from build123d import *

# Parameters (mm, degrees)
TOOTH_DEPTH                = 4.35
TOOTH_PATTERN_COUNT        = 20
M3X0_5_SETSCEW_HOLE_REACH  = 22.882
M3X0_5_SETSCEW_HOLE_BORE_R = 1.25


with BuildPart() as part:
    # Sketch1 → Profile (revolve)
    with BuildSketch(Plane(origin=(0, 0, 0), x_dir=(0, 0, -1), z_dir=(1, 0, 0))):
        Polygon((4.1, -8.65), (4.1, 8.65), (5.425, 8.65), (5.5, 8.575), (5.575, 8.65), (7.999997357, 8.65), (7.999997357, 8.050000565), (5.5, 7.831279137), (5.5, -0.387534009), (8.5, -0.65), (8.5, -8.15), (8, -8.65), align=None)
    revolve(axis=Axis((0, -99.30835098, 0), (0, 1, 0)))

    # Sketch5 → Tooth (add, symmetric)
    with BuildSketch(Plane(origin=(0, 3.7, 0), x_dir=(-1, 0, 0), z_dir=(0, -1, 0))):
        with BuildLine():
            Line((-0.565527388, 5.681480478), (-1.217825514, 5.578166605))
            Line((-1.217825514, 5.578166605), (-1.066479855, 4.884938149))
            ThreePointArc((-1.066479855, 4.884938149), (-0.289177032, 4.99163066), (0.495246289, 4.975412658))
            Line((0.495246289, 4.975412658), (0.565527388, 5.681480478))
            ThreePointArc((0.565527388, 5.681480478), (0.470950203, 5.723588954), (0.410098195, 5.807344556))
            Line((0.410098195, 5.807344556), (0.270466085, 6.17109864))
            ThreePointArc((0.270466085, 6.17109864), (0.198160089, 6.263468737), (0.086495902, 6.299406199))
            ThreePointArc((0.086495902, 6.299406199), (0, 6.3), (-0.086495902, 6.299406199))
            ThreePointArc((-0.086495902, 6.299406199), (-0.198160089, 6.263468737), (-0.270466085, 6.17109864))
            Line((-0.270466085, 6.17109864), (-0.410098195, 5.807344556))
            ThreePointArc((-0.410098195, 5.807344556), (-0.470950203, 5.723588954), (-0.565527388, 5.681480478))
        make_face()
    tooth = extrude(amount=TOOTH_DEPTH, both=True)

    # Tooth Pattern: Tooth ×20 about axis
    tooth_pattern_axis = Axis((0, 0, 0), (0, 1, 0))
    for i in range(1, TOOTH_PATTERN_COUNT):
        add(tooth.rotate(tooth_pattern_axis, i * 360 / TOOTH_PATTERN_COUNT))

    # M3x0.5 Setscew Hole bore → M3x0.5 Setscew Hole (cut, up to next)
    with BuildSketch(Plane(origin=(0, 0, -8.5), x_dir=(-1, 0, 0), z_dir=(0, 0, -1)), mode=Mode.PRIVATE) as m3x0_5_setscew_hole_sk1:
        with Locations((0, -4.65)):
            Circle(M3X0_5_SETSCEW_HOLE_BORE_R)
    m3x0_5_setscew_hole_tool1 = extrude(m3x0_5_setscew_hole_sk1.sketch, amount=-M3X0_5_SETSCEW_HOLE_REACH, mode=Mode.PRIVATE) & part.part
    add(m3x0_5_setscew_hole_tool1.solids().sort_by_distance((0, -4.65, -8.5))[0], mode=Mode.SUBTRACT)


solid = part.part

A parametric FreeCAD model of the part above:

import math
import FreeCAD as App
import Part
import Sketcher

V = App.Vector
Q = App.Units.Quantity


def add_polygon(sketch, points):
    """Adds a closed chain of lines whose ends are joined by coincident constraints."""
    first, n = sketch.GeometryCount, len(points)
    for a, b in zip(points, points[1:] + points[:1]):
        sketch.addGeometry(Part.LineSegment(App.Vector(*a, 0), App.Vector(*b, 0)), False)
    for i in range(n):
        sketch.addConstraint(Sketcher.Constraint("Coincident", first + i, 2, first + (i + 1) % n, 1))

doc = App.newDocument("Part")
body = doc.addObject("PartDesign::Body", "Body")

# Sketch on YZ plane
sketch1 = doc.addObject("Sketcher::SketchObject", "Sketch")
body.addObject(sketch1)
sketch1.AttachmentSupport = (doc.YZ_Plane, [""])
sketch1.MapMode = "FlatFace"
add_polygon(sketch1, [(8.65, -4.1), (-8.65, -4.1), (-8.65, -8), (-8.15, -8.5), (-0.65, -8.5), (-0.39, -5.5), (7.83, -5.5), (8.05, -8), (8.65, -8), (8.65, -5.58), (8.57, -5.5), (8.65, -5.42)])  # lines 0-11
sketch1.addConstraint(Sketcher.Constraint("Horizontal", 0))
sketch1.addConstraint(Sketcher.Constraint("Vertical", 1))
sketch1.addConstraint(Sketcher.Constraint("Horizontal", 3))
sketch1.addConstraint(Sketcher.Constraint("Horizontal", 5))
sketch1.addConstraint(Sketcher.Constraint("Horizontal", 7))
sketch1.addConstraint(Sketcher.Constraint("Vertical", 8))
sketch1.addConstraint(Sketcher.Constraint("Vertical", 11))
sketch1.addConstraint(Sketcher.Constraint("Symmetric", 1, 2, 7, 2, -2))
sketch1.addConstraint(Sketcher.Constraint("Parallel", 2, 9))
sketch1.addConstraint(Sketcher.Constraint("Perpendicular", 9, 10))
sketch1.addConstraint(Sketcher.Constraint("Horizontal", 5, 2, 9, 2))
sketch1.addConstraint(Sketcher.Constraint("Vertical", 8, 2, 10, 2))
sketch1.addConstraint(Sketcher.Constraint("Equal", 9, 10))
sketch1.addConstraint(Sketcher.Constraint("Angle", 4, Q("85 deg")))
sketch1.addConstraint(Sketcher.Constraint("Angle", 6, Q("-85 deg")))
sketch1.addConstraint(Sketcher.Constraint("DistanceX", 0, 2, 0, 1, Q("17.3 mm")))
sketch1.addConstraint(Sketcher.Constraint("DistanceX", 3, 1, 3, 2, Q("7.5 mm")))
sketch1.addConstraint(Sketcher.Constraint("DistanceX", 7, 1, 7, 2, Q("0.599999 mm")))
sketch1.addConstraint(Sketcher.Constraint("DistanceY", 1, 2, 1, 1, Q("3.9 mm")))
sketch1.addConstraint(Sketcher.Constraint("DistanceY", 1, 2, -1, 1, Q("8 mm")))
sketch1.addConstraint(Sketcher.Constraint("DistanceX", 1, 2, 3, 2, Q("8 mm")))
sketch1.addConstraint(Sketcher.Constraint("DistanceY", 3, 2, 4, 2, Q("3 mm")))
sketch1.addConstraint(Sketcher.Constraint("DistanceY", 11, 1, 11, 2, Q("1.325 mm")))
revolution = doc.addObject("PartDesign::Revolution", "Revolution")
body.addObject(revolution)
revolution.Profile = sketch1
revolution.ReferenceAxis = (sketch1, ["H_Axis"])
revolution.Angle = 360

# Sketch on XZ plane
sketch2 = doc.addObject("Sketcher::SketchObject", "Sketch001")
body.addObject(sketch2)
sketch2.AttachmentSupport = (doc.XZ_Plane, [""])
sketch2.MapMode = "FlatFace"
sketch2.AttachmentOffset = App.Placement(V(0, 0, -3.7), App.Rotation())
sketch2.addGeometry(Part.LineSegment(V(0.57, -5.68, 0), V(1.22, -5.58, 0)), False)
sketch2.addGeometry(Part.LineSegment(V(1.22, -5.58, 0), V(1.07, -4.88, 0)), False)
sketch2.addGeometry(Part.ArcOfCircle(Part.Circle(V(0, 0, 0), V(0, 0, 1), 5), math.radians(-95.68), math.radians(-77.68)), False)
sketch2.addGeometry(Part.LineSegment(V(-0.5, -4.98, 0), V(-0.57, -5.68, 0)), False)
sketch2.addGeometry(Part.ArcOfCircle(Part.Circle(V(-0.6, -5.88, 0), V(0, 0, 1), 0.2), math.radians(21), math.radians(81)), False)
sketch2.addGeometry(Part.LineSegment(V(-0.41, -5.81, 0), V(-0.27, -6.17, 0)), False)
sketch2.addGeometry(Part.ArcOfCircle(Part.Circle(V(-0.08, -6.1, 0), V(0, 0, 1), 0.2), math.radians(-159), math.radians(-91)), False)
sketch2.addGeometry(Part.ArcOfCircle(Part.Circle(V(0, 0, 0), V(0, 0, 1), 6.3), math.radians(-90.79), math.radians(-89.21)), False)
sketch2.addGeometry(Part.ArcOfCircle(Part.Circle(V(0.08, -6.1, 0), V(0, 0, 1), 0.2), math.radians(-89), math.radians(-21)), False)
sketch2.addGeometry(Part.LineSegment(V(0.27, -6.17, 0), V(0.41, -5.81, 0)), False)
sketch2.addGeometry(Part.ArcOfCircle(Part.Circle(V(0.6, -5.88, 0), V(0, 0, 1), 0.2), math.radians(99), math.radians(159)), False)
sketch2.addConstraint(Sketcher.Constraint("Coincident", 0, 2, 1, 1))
sketch2.addConstraint(Sketcher.Constraint("Coincident", 1, 2, 2, 2))
sketch2.addConstraint(Sketcher.Constraint("Coincident", 2, 1, 3, 1))
sketch2.addConstraint(Sketcher.Constraint("Coincident", 3, 2, 4, 2))
sketch2.addConstraint(Sketcher.Constraint("Tangent", 4, 1, 5, 1))
sketch2.addConstraint(Sketcher.Constraint("Tangent", 5, 2, 6, 1))
sketch2.addConstraint(Sketcher.Constraint("Tangent", 6, 2, 7, 1))
sketch2.addConstraint(Sketcher.Constraint("Tangent", 7, 2, 8, 1))
sketch2.addConstraint(Sketcher.Constraint("Tangent", 8, 2, 9, 1))
sketch2.addConstraint(Sketcher.Constraint("Tangent", 9, 2, 10, 2))
sketch2.addConstraint(Sketcher.Constraint("Tangent", 10, 1, 0, 1))
sketch2.addConstraint(Sketcher.Constraint("Coincident", 2, 3, -1, 1))
sketch2.addConstraint(Sketcher.Constraint("Coincident", 7, 3, -1, 1))
sketch2.addConstraint(Sketcher.Constraint("Equal", 4, 6))
sketch2.addConstraint(Sketcher.Constraint("Equal", 6, 8))
sketch2.addConstraint(Sketcher.Constraint("Equal", 8, 10))
sketch2.addConstraint(Sketcher.Constraint("Symmetric", 4, 3, 10, 3, -2))
sketch2.addConstraint(Sketcher.Constraint("Horizontal", 6, 3, 8, 3))
sketch2.addConstraint(Sketcher.Constraint("Horizontal", 3, 2, 10, 1))
sketch2.addConstraint(Sketcher.Constraint("Equal", 1, 3))
sketch2.addConstraint(Sketcher.Constraint("Radius", 2, Q("5 mm")))
sketch2.addConstraint(Sketcher.Constraint("Radius", 4, Q("0.2 mm")))
sketch2.addConstraint(Sketcher.Constraint("Radius", 7, Q("6.300001 mm")))
sketch2.addConstraint(Sketcher.Constraint("Angle", 0, Q("9 deg")))
sketch2.addConstraint(Sketcher.Constraint("Angle", 5, Q("-69 deg")))
sketch2.addConstraint(Sketcher.Constraint("DistanceX", 4, 1, -1, 1, Q("0.410098 mm")))
sketch2.addConstraint(Sketcher.Constraint("DistanceX", 6, 3, 8, 3, Q("0.1675 mm")))
sketch2.addConstraint(Sketcher.Constraint("DistanceX", -1, 1, 1, 2, Q("1.06648 mm")))
sketch2.addConstraint(Sketcher.Constraint("DistanceX", 2, 1, 10, 3, Q("1.092061 mm")))
pad1 = doc.addObject("PartDesign::Pad", "Pad")
body.addObject(pad1)
pad1.Profile = sketch2
pad1.Length = 8.7
pad1.Midplane = True
doc.recompute()

polarpattern = doc.addObject("PartDesign::PolarPattern", "PolarPattern")
body.addObject(polarpattern)
polarpattern.Originals = [pad1]
polarpattern.Axis = (doc.Y_Axis, [""])
polarpattern.Angle = 360
polarpattern.Occurrences = 20
body.Tip = polarpattern

# Sketch on XY plane
sketch3 = doc.addObject("Sketcher::SketchObject", "Sketch002")
body.addObject(sketch3)
sketch3.AttachmentSupport = (doc.XY_Plane, [""])
sketch3.MapMode = "FlatFace"
sketch3.AttachmentOffset = App.Placement(V(0, 0, -8.5), App.Rotation())
sketch3.addGeometry(Part.Circle(V(0, -4.7, 0), V(0, 0, 1), 1.2), False)
sketch3.addConstraint(Sketcher.Constraint("PointOnObject", 0, 3, -2))
sketch3.addConstraint(Sketcher.Constraint("Diameter", 0, Q("2.5 mm")))
sketch3.addConstraint(Sketcher.Constraint("DistanceY", 0, 3, -1, 1, Q("4.65 mm")))
pocket1 = doc.addObject("PartDesign::Pocket", "Pocket")
body.addObject(pocket1)
pocket1.Profile = sketch3
pocket1.Length = 4.595195
pocket1.Reversed = True

doc.recompute()
